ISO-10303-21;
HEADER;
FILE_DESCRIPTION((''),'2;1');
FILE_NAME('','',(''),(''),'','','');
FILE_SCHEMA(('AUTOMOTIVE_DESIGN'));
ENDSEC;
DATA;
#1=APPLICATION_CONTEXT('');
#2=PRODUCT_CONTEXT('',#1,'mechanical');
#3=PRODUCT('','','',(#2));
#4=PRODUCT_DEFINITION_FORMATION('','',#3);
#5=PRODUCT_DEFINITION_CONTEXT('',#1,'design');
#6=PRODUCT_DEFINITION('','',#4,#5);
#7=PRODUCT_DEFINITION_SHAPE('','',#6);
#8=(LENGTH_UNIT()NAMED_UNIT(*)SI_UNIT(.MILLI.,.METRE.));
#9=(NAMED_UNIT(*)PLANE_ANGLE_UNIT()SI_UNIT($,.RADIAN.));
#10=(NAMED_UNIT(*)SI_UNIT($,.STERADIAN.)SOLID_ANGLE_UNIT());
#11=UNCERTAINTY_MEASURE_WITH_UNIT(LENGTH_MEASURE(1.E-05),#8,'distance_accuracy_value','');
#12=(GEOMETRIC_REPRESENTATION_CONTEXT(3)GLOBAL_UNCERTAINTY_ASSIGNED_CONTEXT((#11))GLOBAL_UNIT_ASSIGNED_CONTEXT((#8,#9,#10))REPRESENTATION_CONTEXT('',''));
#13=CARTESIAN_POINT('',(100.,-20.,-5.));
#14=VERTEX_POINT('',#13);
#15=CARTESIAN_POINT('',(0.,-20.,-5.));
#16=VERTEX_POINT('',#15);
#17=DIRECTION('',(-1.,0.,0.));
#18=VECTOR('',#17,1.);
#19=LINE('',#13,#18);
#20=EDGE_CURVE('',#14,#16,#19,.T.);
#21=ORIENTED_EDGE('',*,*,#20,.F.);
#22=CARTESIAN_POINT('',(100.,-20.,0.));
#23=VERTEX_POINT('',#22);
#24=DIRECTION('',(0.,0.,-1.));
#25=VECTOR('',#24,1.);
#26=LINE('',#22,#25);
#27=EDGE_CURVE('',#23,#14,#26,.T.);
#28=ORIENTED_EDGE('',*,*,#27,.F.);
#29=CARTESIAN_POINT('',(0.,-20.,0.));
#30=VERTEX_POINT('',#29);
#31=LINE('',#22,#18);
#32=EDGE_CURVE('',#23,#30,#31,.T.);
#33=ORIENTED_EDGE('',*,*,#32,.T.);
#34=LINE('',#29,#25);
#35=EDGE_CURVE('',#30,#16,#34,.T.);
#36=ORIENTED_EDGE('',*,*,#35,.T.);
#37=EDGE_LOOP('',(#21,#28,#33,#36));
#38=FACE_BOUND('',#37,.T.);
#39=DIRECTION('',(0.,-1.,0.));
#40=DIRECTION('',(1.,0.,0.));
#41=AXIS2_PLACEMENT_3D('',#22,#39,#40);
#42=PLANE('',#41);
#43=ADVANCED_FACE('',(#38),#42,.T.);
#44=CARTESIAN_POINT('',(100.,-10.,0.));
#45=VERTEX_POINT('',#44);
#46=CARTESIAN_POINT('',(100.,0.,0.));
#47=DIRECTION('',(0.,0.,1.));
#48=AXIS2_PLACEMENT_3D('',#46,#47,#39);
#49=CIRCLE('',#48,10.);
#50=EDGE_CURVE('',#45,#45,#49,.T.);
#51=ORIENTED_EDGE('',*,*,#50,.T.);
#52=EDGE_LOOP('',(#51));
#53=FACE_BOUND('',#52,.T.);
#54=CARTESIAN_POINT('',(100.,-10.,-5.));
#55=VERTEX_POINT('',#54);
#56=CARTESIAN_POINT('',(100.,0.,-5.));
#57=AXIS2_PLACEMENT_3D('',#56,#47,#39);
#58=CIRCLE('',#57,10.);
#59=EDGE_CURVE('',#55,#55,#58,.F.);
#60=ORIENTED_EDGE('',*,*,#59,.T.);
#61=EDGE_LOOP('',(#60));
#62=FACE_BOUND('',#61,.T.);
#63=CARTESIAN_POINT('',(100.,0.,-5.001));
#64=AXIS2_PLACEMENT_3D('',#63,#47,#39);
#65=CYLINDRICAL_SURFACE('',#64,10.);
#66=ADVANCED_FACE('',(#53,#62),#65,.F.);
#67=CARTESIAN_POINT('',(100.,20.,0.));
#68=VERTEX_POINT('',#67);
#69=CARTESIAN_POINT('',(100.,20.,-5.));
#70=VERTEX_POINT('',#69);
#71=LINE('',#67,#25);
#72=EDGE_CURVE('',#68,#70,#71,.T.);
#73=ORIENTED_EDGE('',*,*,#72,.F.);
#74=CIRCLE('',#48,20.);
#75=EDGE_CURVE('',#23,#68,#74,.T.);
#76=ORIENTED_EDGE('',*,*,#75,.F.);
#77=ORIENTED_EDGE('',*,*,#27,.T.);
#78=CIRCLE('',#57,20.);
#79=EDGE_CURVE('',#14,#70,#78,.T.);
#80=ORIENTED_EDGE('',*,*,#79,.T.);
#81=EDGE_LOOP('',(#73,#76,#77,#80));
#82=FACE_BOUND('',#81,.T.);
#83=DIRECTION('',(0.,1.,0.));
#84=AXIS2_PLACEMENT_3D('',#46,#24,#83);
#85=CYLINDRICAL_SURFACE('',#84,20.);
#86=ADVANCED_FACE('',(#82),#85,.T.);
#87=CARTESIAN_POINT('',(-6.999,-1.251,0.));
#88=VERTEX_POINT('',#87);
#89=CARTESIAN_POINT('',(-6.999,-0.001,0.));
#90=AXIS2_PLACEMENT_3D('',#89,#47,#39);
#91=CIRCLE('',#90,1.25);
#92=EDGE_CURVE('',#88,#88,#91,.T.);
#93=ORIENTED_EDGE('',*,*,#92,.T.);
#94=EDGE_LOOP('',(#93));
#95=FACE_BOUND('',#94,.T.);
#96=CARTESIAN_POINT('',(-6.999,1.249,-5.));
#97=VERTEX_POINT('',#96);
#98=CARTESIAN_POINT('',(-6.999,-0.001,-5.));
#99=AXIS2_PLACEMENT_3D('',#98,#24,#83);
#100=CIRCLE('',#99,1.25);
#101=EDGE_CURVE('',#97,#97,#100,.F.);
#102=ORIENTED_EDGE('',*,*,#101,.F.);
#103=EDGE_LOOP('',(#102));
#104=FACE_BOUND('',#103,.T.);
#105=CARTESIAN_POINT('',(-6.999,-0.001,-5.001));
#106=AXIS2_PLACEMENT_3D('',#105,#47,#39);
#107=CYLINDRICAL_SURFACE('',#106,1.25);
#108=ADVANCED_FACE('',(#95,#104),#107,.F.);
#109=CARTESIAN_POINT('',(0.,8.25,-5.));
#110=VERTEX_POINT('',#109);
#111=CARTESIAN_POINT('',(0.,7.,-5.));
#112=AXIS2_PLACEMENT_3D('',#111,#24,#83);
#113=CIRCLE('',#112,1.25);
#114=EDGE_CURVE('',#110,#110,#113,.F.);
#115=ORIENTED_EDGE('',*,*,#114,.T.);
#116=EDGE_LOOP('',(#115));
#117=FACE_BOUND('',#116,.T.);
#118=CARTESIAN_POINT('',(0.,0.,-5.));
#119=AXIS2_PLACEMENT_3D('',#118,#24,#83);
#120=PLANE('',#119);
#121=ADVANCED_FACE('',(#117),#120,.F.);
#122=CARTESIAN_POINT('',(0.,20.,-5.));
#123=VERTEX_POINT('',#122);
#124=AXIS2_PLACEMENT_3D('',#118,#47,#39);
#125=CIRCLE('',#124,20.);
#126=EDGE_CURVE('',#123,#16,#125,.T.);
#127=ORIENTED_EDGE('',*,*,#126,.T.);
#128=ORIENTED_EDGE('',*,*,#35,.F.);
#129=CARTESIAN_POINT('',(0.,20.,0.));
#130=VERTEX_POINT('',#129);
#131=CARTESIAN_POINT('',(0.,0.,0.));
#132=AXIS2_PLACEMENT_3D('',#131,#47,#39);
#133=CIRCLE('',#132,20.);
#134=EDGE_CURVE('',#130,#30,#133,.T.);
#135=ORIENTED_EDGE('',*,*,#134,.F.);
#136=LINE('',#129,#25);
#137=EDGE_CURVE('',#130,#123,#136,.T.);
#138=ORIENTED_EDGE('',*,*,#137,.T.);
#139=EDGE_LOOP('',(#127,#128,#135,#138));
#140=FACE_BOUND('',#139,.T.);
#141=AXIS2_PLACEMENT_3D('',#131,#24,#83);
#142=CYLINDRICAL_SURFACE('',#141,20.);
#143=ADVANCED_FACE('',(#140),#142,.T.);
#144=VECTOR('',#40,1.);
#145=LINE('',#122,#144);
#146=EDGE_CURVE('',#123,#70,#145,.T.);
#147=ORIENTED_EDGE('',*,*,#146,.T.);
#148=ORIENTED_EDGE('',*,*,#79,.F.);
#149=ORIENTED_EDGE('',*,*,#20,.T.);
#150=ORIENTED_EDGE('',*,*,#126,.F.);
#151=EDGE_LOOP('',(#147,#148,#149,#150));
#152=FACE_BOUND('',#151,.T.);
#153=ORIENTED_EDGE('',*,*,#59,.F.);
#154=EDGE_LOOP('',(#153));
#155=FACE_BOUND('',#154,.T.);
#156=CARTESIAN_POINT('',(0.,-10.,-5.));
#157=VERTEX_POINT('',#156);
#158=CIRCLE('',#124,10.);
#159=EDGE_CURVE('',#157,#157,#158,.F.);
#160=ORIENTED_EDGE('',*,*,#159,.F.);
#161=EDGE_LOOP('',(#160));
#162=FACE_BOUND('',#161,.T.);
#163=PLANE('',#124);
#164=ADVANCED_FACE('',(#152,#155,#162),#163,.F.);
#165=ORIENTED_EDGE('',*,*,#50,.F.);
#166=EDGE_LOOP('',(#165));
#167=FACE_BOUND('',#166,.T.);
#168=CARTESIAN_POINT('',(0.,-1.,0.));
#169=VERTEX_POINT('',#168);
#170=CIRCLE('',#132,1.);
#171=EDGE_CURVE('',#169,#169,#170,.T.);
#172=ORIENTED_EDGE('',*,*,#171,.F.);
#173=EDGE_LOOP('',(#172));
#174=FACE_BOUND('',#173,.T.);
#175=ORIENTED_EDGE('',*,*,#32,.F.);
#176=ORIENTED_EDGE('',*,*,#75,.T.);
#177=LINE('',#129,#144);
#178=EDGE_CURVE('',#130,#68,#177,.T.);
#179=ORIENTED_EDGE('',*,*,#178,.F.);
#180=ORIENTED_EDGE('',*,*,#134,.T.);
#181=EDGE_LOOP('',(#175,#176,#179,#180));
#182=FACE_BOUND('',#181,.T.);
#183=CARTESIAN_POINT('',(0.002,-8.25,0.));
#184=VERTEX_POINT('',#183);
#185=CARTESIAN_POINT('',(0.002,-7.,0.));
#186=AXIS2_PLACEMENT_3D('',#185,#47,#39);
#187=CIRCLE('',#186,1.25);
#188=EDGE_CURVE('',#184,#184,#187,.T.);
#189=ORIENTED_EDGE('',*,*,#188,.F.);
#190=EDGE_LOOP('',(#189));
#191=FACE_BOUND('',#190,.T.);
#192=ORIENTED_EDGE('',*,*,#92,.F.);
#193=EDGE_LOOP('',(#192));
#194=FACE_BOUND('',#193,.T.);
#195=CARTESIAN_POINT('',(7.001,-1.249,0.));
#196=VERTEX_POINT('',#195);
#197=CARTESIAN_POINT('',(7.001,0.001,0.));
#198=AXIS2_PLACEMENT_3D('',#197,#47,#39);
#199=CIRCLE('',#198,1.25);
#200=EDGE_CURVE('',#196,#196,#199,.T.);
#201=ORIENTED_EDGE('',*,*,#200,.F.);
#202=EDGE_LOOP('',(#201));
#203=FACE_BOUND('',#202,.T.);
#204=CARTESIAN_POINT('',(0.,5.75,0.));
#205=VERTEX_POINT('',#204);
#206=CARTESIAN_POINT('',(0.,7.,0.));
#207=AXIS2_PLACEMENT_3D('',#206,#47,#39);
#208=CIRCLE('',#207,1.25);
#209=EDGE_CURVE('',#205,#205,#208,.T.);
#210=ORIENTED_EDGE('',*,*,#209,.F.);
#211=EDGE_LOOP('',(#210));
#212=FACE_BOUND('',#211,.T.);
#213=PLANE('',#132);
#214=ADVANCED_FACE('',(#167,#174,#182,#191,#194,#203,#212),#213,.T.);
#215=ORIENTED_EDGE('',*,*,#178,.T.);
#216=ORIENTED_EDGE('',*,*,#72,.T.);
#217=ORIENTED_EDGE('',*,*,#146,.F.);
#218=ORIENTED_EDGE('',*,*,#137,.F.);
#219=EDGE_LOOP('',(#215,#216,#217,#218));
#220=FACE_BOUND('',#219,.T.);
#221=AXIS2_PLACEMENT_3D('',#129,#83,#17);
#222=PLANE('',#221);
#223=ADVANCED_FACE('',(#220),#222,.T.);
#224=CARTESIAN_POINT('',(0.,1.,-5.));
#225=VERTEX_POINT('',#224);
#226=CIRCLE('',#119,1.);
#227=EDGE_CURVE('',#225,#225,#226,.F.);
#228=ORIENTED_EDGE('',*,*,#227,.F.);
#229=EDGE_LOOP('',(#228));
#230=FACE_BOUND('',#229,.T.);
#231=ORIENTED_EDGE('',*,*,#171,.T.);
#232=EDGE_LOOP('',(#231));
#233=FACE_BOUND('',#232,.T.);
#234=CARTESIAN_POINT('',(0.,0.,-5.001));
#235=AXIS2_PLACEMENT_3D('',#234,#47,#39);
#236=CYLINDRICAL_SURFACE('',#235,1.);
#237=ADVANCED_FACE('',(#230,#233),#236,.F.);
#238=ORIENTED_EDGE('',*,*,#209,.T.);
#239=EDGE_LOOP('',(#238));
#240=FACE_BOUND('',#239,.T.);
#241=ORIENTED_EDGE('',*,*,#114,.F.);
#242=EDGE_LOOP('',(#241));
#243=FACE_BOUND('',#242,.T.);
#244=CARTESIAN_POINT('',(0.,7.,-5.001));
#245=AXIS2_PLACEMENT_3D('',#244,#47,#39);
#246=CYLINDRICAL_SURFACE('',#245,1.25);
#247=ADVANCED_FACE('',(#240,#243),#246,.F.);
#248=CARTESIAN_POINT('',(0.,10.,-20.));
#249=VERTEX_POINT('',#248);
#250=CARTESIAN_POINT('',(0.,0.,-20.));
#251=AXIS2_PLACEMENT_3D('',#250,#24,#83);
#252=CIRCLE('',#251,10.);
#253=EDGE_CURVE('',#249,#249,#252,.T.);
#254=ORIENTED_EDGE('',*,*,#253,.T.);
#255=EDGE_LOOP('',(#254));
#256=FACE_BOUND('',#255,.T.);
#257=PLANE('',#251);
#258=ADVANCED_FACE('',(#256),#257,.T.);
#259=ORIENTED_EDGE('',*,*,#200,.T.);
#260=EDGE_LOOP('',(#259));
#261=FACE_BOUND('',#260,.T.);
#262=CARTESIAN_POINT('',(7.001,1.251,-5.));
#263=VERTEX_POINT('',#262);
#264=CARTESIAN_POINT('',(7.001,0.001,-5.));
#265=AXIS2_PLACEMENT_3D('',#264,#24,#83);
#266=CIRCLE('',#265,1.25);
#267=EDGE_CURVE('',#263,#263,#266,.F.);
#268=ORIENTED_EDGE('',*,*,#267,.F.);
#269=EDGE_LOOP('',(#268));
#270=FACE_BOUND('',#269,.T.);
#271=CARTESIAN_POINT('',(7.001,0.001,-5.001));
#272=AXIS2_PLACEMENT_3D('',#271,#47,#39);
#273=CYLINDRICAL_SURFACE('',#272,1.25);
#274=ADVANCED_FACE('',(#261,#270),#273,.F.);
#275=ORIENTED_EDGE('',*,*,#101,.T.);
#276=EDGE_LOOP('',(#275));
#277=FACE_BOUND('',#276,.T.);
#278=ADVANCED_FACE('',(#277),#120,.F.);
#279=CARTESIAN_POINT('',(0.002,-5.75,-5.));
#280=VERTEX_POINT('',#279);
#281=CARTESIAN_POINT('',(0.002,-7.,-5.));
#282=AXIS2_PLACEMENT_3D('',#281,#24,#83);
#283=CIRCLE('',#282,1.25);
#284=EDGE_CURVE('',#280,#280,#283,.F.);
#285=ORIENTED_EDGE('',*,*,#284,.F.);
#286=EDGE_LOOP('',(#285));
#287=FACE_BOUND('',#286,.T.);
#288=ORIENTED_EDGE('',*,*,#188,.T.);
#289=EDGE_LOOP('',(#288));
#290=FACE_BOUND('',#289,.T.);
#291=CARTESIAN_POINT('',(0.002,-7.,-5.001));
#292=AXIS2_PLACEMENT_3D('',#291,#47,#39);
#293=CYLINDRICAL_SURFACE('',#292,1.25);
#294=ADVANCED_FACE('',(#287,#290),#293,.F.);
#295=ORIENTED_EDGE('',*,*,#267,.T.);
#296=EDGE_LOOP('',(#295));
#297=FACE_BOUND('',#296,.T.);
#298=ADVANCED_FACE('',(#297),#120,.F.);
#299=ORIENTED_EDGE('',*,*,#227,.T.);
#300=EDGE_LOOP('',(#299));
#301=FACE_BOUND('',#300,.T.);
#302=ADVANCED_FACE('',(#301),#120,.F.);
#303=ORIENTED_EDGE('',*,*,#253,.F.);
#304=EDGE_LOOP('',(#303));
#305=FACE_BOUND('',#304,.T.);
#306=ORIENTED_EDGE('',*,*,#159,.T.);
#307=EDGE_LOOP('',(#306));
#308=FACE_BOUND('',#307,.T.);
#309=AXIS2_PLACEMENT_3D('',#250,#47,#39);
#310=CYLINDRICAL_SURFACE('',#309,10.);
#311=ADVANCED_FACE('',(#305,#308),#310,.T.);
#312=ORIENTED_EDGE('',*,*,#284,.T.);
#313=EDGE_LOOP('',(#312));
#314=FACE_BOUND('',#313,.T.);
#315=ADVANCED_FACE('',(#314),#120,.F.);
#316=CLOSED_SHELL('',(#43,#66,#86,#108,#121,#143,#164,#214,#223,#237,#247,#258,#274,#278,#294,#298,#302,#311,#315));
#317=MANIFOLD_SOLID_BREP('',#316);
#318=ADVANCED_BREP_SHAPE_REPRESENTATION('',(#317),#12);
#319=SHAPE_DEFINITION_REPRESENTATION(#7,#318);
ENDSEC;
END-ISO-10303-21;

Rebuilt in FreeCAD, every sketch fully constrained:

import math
import FreeCAD as App
import Part
import Sketcher
Q = App.Units.Quantity

doc = App.newDocument("Part")
body = doc.addObject("PartDesign::Body", "Body")

sketch1 = body.newObject("Sketcher::SketchObject", "Sketch")
sketch1.AttachmentSupport = (doc.getObject("XZ_Plane"), [""])
sketch1.MapMode = "FlatFace"
sketch1.addGeometry([
    Part.LineSegment(App.Vector(0, 20, 0), App.Vector(100, 20, 0)),
    Part.ArcOfCircle(Part.Circle(App.Vector(100, 0, 0), App.Vector(0, 0, 1), 20), math.radians(-90), math.radians(90)),
    Part.LineSegment(App.Vector(100, -20, 0), App.Vector(0, -20, 0)),
    Part.ArcOfCircle(Part.Circle(App.Vector(0, 0, 0), App.Vector(0, 0, 1), 20), math.radians(90), math.radians(270)),
], False)
sketch1.addConstraint([
    Sketcher.Constraint("Tangent", 0, 2, 1, 2),
    Sketcher.Constraint("Tangent", 1, 1, 2, 1),
    Sketcher.Constraint("Tangent", 2, 2, 3, 2),
    Sketcher.Constraint("Tangent", 3, 1, 0, 1),
    Sketcher.Constraint("Horizontal", 0),
    Sketcher.Constraint("Horizontal", 2),
    Sketcher.Constraint("Coincident", 3, 3, -1, 1),
    Sketcher.Constraint("Radius", 1, Q("20 mm")),
    Sketcher.Constraint("DistanceX", 0, 1, 0, 2, Q("100 mm")),
])
pad1 = body.newObject("PartDesign::Pad", "Pad")
pad1.Profile = sketch1
pad1.Length = 5
pad1.Reversed = True

sketch2 = body.newObject("Sketcher::SketchObject", "Sketch001")
sketch2.AttachmentSupport = (doc.getObject("XZ_Plane"), [""])
sketch2.MapMode = "FlatFace"
sketch2.AttachmentOffset = App.Placement(App.Vector(0, 0, -5), App.Rotation())
sketch2.addGeometry(Part.Circle(App.Vector(0, 0, 0), App.Vector(0, 0, 1), 1), False)
sketch2.addConstraint([
    Sketcher.Constraint("Coincident", 0, 3, -1, 1),
    Sketcher.Constraint("Diameter", 0, Q("2 mm")),
])
pocket1 = body.newObject("PartDesign::Pocket", "Pocket")
pocket1.Profile = sketch2
pocket1.Type = "UpToFirst"
pocket1.Reversed = True

sketch3 = body.newObject("Sketcher::SketchObject", "Sketch002")
sketch3.AttachmentSupport = (doc.getObject("XZ_Plane"), [""])
sketch3.MapMode = "FlatFace"
sketch3.AttachmentOffset = App.Placement(App.Vector(0, 0, -5), App.Rotation())
sketch3.addGeometry(Part.Circle(App.Vector(0, -7, 0), App.Vector(0, 0, 1), 1.2), False)
sketch3.addConstraint([
    Sketcher.Constraint("PointOnObject", 0, 3, -2),
    Sketcher.Constraint("Diameter", 0, Q("2.5 mm")),
    Sketcher.Constraint("DistanceY", 0, 3, -1, 1, Q("7 mm")),
])
pocket2 = body.newObject("PartDesign::Pocket", "Pocket001")
pocket2.Profile = sketch3
pocket2.Type = "UpToFirst"
pocket2.Reversed = True

sketch4 = body.newObject("Sketcher::SketchObject", "Sketch003")
sketch4.AttachmentSupport = (doc.getObject("XZ_Plane"), [""])
sketch4.MapMode = "FlatFace"
sketch4.AttachmentOffset = App.Placement(App.Vector(0, 0, -5), App.Rotation())
sketch4.addGeometry(Part.Circle(App.Vector(7, 0, 0), App.Vector(0, 0, 1), 1.2), False)
sketch4.addConstraint([
    Sketcher.Constraint("Diameter", 0, Q("2.5 mm")),
    Sketcher.Constraint("DistanceX", -1, 1, 0, 3, Q("7.001 mm")),
    Sketcher.Constraint("DistanceY", 0, 3, -1, 1, Q("0.001 mm")),
])
pocket3 = body.newObject("PartDesign::Pocket", "Pocket002")
pocket3.Profile = sketch4
pocket3.Type = "UpToFirst"
pocket3.Reversed = True

sketch5 = body.newObject("Sketcher::SketchObject", "Sketch004")
sketch5.AttachmentSupport = (doc.getObject("XZ_Plane"), [""])
sketch5.MapMode = "FlatFace"
sketch5.AttachmentOffset = App.Placement(App.Vector(0, 0, -5), App.Rotation())
sketch5.addGeometry(Part.Circle(App.Vector(0, 7, 0), App.Vector(0, 0, 1), 1.2), False)
sketch5.addConstraint([
    Sketcher.Constraint("Diameter", 0, Q("2.5 mm")),
    Sketcher.Constraint("DistanceY", -1, 1, 0, 3, Q("7 mm")),
    Sketcher.Constraint("DistanceX", -1, 1, 0, 3, Q("0.002 mm")),
])
pocket4 = body.newObject("PartDesign::Pocket", "Pocket003")
pocket4.Profile = sketch5
pocket4.Type = "UpToFirst"
pocket4.Reversed = True

sketch6 = body.newObject("Sketcher::SketchObject", "Sketch005")
sketch6.AttachmentSupport = (doc.getObject("XZ_Plane"), [""])
sketch6.MapMode = "FlatFace"
sketch6.AttachmentOffset = App.Placement(App.Vector(0, 0, -5), App.Rotation())
sketch6.addGeometry(Part.Circle(App.Vector(-7, 0, 0), App.Vector(0, 0, 1), 1.2), False)
sketch6.addConstraint([
    Sketcher.Constraint("Diameter", 0, Q("2.5 mm")),
    Sketcher.Constraint("DistanceX", 0, 3, -1, 1, Q("6.999 mm")),
    Sketcher.Constraint("DistanceY", -1, 1, 0, 3, Q("0.001 mm")),
])
pocket5 = body.newObject("PartDesign::Pocket", "Pocket004")
pocket5.Profile = sketch6
pocket5.Type = "UpToFirst"
pocket5.Reversed = True

sketch7 = body.newObject("Sketcher::SketchObject", "Sketch006")
sketch7.AttachmentSupport = (doc.getObject("XZ_Plane"), [""])
sketch7.MapMode = "FlatFace"
sketch7.AttachmentOffset = App.Placement(App.Vector(0, 0, -5), App.Rotation())
sketch7.addGeometry(Part.Circle(App.Vector(100, 0, 0), App.Vector(0, 0, 1), 10), False)
sketch7.addConstraint([
    Sketcher.Constraint("PointOnObject", 0, 3, -1),
    Sketcher.Constraint("Diameter", 0, Q("20 mm")),
    Sketcher.Constraint("DistanceX", -1, 1, 0, 3, Q("100 mm")),
])
pocket6 = body.newObject("PartDesign::Pocket", "Pocket005")
pocket6.Profile = sketch7
pocket6.Type = "UpToFirst"
pocket6.Reversed = True

sketch8 = body.newObject("Sketcher::SketchObject", "Sketch007")
sketch8.AttachmentSupport = (doc.getObject("XZ_Plane"), [""])
sketch8.MapMode = "FlatFace"
sketch8.addGeometry(Part.Circle(App.Vector(0, 0, 0), App.Vector(0, 0, 1), 10), False)
sketch8.addConstraint([
    Sketcher.Constraint("Coincident", 0, 3, -1, 1),
    Sketcher.Constraint("Diameter", 0, Q("20 mm")),
])
pad2 = body.newObject("PartDesign::Pad", "Pad001")
pad2.Profile = sketch8
pad2.Length = 15
body2 = doc.addObject("PartDesign::Body", "Body001")
doc.recompute()

body.Placement = App.Placement(App.Vector(0, 0, 0), App.Rotation(App.Vector(1, 0, 0), 90))
boolean = body2.newObject("PartDesign::Boolean", "Boolean")
boolean.Type = "Fuse"
boolean.addObjects([body])
body3 = doc.addObject("PartDesign::Body", "Body002")
doc.recompute()

body2.Placement = App.Placement(App.Vector(0, 0, -5), App.Rotation(App.Vector(0, 0, 1), 0))
boolean2 = body3.newObject("PartDesign::Boolean", "Boolean001")
boolean2.Type = "Fuse"
boolean2.addObjects([body2])

doc.recompute()
